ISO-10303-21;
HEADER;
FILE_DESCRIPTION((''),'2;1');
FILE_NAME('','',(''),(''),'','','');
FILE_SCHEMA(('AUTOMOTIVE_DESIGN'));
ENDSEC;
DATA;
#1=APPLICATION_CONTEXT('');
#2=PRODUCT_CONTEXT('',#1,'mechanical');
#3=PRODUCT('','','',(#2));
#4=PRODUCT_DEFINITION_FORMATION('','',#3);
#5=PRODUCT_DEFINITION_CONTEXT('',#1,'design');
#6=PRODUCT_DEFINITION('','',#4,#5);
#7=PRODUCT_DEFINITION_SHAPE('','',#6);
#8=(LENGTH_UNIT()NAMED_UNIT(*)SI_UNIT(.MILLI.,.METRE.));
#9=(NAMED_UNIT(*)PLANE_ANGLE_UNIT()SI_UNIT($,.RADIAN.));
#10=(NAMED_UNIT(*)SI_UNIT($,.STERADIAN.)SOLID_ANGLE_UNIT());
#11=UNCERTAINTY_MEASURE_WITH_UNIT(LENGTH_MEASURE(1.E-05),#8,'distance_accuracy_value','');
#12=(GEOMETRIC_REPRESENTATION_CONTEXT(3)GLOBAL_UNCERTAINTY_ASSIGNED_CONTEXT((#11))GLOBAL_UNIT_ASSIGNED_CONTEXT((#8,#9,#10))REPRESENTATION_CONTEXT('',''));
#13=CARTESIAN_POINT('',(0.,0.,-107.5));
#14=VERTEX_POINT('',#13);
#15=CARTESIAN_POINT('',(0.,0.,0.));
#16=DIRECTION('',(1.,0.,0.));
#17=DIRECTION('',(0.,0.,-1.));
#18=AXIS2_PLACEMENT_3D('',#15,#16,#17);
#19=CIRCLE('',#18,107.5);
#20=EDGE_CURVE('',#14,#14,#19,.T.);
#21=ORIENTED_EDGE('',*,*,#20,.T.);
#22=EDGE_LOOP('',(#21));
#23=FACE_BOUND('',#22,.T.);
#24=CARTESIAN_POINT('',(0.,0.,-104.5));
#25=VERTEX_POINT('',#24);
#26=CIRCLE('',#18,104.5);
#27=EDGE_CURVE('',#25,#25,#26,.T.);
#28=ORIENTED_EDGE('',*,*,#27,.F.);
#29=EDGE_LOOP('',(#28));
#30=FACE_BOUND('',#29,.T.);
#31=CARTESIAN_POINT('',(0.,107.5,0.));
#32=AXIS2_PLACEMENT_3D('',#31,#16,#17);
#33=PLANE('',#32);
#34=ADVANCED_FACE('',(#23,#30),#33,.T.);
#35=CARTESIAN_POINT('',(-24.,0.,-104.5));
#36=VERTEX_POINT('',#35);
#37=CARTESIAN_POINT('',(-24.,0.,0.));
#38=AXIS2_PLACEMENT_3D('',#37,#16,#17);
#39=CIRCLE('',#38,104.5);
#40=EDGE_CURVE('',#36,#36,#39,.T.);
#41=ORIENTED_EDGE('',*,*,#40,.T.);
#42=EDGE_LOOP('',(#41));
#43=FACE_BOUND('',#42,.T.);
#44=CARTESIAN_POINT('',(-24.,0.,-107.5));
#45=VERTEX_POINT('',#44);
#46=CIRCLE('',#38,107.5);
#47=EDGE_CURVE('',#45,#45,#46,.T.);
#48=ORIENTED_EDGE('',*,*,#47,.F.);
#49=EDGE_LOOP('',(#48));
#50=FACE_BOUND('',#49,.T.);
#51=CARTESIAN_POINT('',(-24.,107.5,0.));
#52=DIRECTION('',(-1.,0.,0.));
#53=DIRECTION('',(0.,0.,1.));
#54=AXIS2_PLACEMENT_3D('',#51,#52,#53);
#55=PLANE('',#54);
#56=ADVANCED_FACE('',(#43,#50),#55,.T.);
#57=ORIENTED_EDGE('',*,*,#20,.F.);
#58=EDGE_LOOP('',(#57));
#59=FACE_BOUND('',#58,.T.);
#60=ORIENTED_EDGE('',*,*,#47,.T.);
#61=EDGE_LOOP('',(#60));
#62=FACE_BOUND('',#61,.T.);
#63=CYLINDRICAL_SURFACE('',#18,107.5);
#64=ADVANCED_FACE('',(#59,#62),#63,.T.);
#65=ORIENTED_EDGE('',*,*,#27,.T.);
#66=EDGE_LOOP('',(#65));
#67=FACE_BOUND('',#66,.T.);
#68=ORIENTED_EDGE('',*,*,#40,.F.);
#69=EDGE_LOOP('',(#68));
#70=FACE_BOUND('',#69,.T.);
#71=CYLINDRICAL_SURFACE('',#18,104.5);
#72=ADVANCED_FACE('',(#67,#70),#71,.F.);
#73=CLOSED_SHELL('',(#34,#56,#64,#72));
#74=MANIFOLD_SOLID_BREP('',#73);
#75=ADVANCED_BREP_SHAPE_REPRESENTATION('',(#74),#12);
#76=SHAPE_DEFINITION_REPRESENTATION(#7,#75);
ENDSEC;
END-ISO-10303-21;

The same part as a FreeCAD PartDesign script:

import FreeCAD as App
import Part
import Sketcher
from FreeCAD import Vector


def add_polygon(sketch, points):
    """Adds a closed chain of lines whose ends are joined by coincident constraints."""
    first, n = sketch.GeometryCount, len(points)
    for a, b in zip(points, points[1:] + points[:1]):
        sketch.addGeometry(Part.LineSegment(App.Vector(*a, 0), App.Vector(*b, 0)), False)
    for i in range(n):
        sketch.addConstraint(Sketcher.Constraint("Coincident", first + i, 2, first + (i + 1) % n, 1))

doc = App.newDocument("Part")
body = doc.addObject("PartDesign::Body", "Body")

sketch1 = body.newObject("Sketcher::SketchObject", "Sketch")
sketch1.AttachmentSupport = (doc.getObject("XY_Plane"), [""])
sketch1.MapMode = "FlatFace"
add_polygon(sketch1, [(-24, 107.5), (-24, 104.5), (0, 104.5), (0, 107.5)])
sketch1.addConstraint(Sketcher.Constraint("Vertical", 0))
sketch1.addConstraint(Sketcher.Constraint("Horizontal", 1))
sketch1.addConstraint(Sketcher.Constraint("Vertical", 2))
sketch1.addConstraint(Sketcher.Constraint("Horizontal", 3))
sketch1.addConstraint(Sketcher.Constraint("PointOnObject", 1, 2, -2))
sketch1.addConstraint(Sketcher.Constraint("DistanceX", 1, 1, 1, 2, 24.0))
sketch1.addConstraint(Sketcher.Constraint("DistanceY", 0, 2, 0, 1, 3.0))
sketch1.addConstraint(Sketcher.Constraint("DistanceY", -1, 1, 0, 2, 104.5))
revolution = body.newObject("PartDesign::Revolution", "Revolution")
revolution.Profile = sketch1
revolution.ReferenceAxis = (sketch1, ["H_Axis"])
revolution.Angle = 360

doc.recompute()
